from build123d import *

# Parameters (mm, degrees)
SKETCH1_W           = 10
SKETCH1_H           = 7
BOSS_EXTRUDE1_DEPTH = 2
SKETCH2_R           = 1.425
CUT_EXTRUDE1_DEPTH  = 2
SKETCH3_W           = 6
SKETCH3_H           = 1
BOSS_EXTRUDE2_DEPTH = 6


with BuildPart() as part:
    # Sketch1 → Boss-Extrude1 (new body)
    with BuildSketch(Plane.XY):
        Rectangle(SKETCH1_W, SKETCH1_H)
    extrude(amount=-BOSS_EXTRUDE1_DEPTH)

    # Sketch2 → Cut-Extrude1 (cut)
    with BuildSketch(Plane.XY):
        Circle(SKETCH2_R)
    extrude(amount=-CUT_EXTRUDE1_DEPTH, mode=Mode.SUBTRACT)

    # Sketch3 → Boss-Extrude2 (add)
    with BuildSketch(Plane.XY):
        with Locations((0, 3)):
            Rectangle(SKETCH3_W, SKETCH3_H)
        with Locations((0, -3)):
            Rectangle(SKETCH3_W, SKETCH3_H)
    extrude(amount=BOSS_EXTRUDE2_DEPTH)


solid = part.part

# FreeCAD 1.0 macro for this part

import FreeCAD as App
import Part
import Sketcher

V = App.Vector
Q = App.Units.Quantity


def add_polygon(sketch, points):
    """Adds a closed chain of lines whose ends are joined by coincident constraints."""
    first, n = sketch.GeometryCount, len(points)
    for a, b in zip(points, points[1:] + points[:1]):
        sketch.addGeometry(Part.LineSegment(App.Vector(*a, 0), App.Vector(*b, 0)), False)
    for i in range(n):
        sketch.addConstraint(Sketcher.Constraint("Coincident", first + i, 2, first + (i + 1) % n, 1))

doc = App.newDocument("Part")
body = doc.addObject("PartDesign::Body", "Body")

sketch1 = body.newObject("Sketcher::SketchObject", "Sketch")
sketch1.AttachmentSupport = (doc.getObject("XY_Plane"), [""])
sketch1.MapMode = "FlatFace"
add_polygon(sketch1, [(-5, 4), (-5, -4), (5, -4), (5, 4)])
sketch1.addConstraint(Sketcher.Constraint("Vertical", 0))
sketch1.addConstraint(Sketcher.Constraint("Horizontal", 1))
sketch1.addConstraint(Sketcher.Constraint("Vertical", 2))
sketch1.addConstraint(Sketcher.Constraint("Horizontal", 3))
sketch1.addConstraint(Sketcher.Constraint("Symmetric", 0, 2, 2, 2, -1, 1))
sketch1.addConstraint(Sketcher.Constraint("DistanceX", 1, 1, 1, 2, Q("10 mm")))
sketch1.addConstraint(Sketcher.Constraint("DistanceY", 0, 2, 0, 1, Q("7 mm")))
pad1 = body.newObject("PartDesign::Pad", "Pad")
pad1.Profile = sketch1
pad1.Length = 2
pad1.Reversed = True

sketch2 = body.newObject("Sketcher::SketchObject", "Sketch001")
sketch2.AttachmentSupport = (doc.getObject("XY_Plane"), [""])
sketch2.MapMode = "FlatFace"
sketch2.addGeometry(Part.Circle(V(0, 0, 0), V(0, 0, 1), 1.4), False)
sketch2.addConstraint(Sketcher.Constraint("Coincident", 0, 3, -1, 1))
sketch2.addConstraint(Sketcher.Constraint("Diameter", 0, Q("2.85 mm")))
pocket1 = body.newObject("PartDesign::Pocket", "Pocket")
pocket1.Profile = sketch2
pocket1.Length = 2

sketch3 = body.newObject("Sketcher::SketchObject", "Sketch002")
sketch3.AttachmentSupport = (doc.getObject("XY_Plane"), [""])
sketch3.MapMode = "FlatFace"
add_polygon(sketch3, [(-3, 3.5), (-3, 2.5), (3, 2.5), (3, 3.5)])
add_polygon(sketch3, [(-3, -2.5), (-3, -3.5), (3, -3.5), (3, -2.5)])
sketch3.addConstraint(Sketcher.Constraint("Vertical", 0))
sketch3.addConstraint(Sketcher.Constraint("Horizontal", 1))
sketch3.addConstraint(Sketcher.Constraint("Vertical", 2))
sketch3.addConstraint(Sketcher.Constraint("Horizontal", 3))
sketch3.addConstraint(Sketcher.Constraint("Vertical", 4))
sketch3.addConstraint(Sketcher.Constraint("Horizontal", 5))
sketch3.addConstraint(Sketcher.Constraint("Vertical", 6))
sketch3.addConstraint(Sketcher.Constraint("Horizontal", 7))
sketch3.addConstraint(Sketcher.Constraint("Symmetric", 2, 2, 4, 2, -1, 1))
sketch3.addConstraint(Sketcher.Constraint("Symmetric", 0, 2, 6, 2, -1, 1))
sketch3.addConstraint(Sketcher.Constraint("Vertical", 3, 2, 4, 2))
sketch3.addConstraint(Sketcher.Constraint("DistanceX", 1, 1, 1, 2, Q("6 mm")))
sketch3.addConstraint(Sketcher.Constraint("DistanceY", 0, 2, 0, 1, Q("1 mm")))
sketch3.addConstraint(Sketcher.Constraint("DistanceY", 4, 2, 0, 2, Q("6 mm")))
pad2 = body.newObject("PartDesign::Pad", "Pad001")
pad2.Profile = sketch3
pad2.Length = 6

doc.recompute()
